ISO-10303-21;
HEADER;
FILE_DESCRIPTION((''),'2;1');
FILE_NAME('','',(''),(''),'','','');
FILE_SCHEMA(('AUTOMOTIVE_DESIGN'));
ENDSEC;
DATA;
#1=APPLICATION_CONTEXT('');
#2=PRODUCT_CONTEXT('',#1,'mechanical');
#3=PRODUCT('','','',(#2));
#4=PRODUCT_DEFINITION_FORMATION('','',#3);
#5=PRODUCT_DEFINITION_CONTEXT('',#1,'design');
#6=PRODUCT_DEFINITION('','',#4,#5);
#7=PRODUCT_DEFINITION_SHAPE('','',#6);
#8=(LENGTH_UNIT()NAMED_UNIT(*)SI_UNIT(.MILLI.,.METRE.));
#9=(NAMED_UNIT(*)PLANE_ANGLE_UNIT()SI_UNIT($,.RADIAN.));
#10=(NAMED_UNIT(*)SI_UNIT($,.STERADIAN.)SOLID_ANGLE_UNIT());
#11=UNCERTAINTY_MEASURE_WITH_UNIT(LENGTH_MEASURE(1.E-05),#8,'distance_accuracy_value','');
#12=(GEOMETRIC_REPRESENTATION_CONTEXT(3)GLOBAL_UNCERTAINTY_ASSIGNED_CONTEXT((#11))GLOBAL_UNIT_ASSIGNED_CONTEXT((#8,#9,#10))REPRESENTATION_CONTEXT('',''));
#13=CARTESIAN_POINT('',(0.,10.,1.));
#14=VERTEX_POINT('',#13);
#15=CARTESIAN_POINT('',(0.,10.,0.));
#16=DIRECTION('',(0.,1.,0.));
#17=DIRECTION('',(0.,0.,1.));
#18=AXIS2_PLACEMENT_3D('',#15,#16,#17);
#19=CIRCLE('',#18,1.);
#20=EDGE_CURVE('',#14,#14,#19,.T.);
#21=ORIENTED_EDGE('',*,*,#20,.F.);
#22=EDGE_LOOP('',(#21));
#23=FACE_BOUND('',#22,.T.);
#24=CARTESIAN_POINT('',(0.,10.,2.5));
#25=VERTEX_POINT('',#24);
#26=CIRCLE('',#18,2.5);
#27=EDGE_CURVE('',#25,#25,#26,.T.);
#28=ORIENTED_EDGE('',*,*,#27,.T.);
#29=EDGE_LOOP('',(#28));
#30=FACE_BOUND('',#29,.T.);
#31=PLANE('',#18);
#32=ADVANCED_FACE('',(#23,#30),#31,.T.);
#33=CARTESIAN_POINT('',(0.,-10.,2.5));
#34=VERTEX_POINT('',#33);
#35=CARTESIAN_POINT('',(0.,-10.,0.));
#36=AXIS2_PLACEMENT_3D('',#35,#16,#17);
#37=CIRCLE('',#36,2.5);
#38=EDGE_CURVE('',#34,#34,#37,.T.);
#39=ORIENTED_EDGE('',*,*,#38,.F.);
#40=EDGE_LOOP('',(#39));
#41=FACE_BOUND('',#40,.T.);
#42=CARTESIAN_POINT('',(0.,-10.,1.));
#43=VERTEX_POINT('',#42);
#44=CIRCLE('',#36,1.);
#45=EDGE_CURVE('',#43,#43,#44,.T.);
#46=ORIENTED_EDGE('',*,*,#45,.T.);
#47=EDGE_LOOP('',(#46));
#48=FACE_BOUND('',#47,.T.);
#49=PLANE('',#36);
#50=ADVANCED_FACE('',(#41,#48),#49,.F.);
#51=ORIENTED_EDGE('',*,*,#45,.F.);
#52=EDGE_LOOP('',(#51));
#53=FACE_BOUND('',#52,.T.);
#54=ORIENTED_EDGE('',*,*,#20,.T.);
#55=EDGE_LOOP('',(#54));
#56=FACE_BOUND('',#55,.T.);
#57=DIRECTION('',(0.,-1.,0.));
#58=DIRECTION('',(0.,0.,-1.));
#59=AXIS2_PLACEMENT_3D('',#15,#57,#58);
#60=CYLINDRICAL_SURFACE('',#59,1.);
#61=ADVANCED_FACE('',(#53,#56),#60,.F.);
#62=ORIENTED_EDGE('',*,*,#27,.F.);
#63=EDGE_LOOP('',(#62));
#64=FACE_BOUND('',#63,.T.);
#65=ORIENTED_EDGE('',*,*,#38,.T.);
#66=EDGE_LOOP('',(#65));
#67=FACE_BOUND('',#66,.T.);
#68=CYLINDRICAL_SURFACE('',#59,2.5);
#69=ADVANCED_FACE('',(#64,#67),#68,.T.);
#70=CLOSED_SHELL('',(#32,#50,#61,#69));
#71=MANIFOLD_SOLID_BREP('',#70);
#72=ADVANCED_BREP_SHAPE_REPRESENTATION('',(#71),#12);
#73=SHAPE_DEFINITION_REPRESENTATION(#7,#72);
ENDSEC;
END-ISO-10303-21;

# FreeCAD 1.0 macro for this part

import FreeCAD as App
import Part
import Sketcher

doc = App.newDocument("Part")
body = doc.addObject("PartDesign::Body", "Body")

# Sketch on XZ plane
sketch1 = doc.addObject("Sketcher::SketchObject", "Sketch")
body.addObject(sketch1)
sketch1.AttachmentSupport = (doc.XZ_Plane, [""])
sketch1.MapMode = "FlatFace"
sketch1.addGeometry([
    Part.Circle(App.Vector(0, 0, 0), App.Vector(0, 0, 1), 2.5),
    Part.Circle(App.Vector(0, 0, 0), App.Vector(0, 0, 1), 1),
], False)
sketch1.addConstraint([
    Sketcher.Constraint("Coincident", 0, 3, -1, 1),
    Sketcher.Constraint("Coincident", 1, 3, -1, 1),
    Sketcher.Constraint("Diameter", 0, 5.0),
    Sketcher.Constraint("Diameter", 1, 2.0),
])
pad1 = doc.addObject("PartDesign::Pad", "Pad")
body.addObject(pad1)
pad1.Profile = sketch1
pad1.Length = 20
pad1.Midplane = True

doc.recompute()
